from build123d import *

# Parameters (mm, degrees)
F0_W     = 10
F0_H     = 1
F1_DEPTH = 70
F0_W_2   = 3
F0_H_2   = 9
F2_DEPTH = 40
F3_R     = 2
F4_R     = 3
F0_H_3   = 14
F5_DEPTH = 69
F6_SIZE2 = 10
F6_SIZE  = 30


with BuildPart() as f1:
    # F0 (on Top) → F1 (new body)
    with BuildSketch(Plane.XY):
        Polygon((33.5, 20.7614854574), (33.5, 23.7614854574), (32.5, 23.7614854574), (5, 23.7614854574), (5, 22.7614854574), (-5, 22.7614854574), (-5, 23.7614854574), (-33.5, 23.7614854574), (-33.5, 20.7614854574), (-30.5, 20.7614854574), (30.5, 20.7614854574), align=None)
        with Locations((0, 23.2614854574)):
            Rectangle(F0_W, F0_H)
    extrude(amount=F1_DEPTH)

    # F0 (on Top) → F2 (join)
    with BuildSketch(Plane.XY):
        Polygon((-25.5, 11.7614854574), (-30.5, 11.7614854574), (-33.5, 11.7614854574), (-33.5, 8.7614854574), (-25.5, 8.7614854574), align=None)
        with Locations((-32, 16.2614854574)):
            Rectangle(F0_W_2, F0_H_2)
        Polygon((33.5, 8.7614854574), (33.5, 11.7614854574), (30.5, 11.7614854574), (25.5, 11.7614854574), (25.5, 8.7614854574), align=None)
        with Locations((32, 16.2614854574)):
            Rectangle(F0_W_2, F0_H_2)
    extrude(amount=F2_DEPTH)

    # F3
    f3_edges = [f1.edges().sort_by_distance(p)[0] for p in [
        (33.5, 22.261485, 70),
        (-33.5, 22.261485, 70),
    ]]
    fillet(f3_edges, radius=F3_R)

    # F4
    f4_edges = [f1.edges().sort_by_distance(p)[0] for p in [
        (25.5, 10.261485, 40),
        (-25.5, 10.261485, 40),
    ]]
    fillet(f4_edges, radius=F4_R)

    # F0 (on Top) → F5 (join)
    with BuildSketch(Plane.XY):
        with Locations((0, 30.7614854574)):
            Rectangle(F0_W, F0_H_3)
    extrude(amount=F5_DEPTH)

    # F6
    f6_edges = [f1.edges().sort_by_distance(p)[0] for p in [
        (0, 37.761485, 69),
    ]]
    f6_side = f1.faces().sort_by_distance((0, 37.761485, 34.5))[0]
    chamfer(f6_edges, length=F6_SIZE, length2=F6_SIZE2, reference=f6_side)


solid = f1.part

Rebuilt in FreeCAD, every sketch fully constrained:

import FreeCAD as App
import Part
import Sketcher
Q = App.Units.Quantity


def edges_at(feature, points):
    """Names of the edges that pass closest to the given points."""
    edges = feature.Shape.Edges
    near = lambda p: min(range(len(edges)), key=lambda i: edges[i].distToShape(Part.Vertex(*p))[0])
    return sorted({f"Edge{near(p) + 1}" for p in points})

doc = App.newDocument("Part")
body = doc.addObject("PartDesign::Body", "Body")

# Sketch on XY plane
sketch1 = body.newObject("Sketcher::SketchObject", "Sketch")
sketch1.AttachmentSupport = (doc.getObject("XY_Plane"), [""])
sketch1.MapMode = "FlatFace"
sketch1.addGeometry([
    Part.LineSegment(App.Vector(33.5, 20.8, 0), App.Vector(33.5, 23.8, 0)),
    Part.LineSegment(App.Vector(33.5, 23.8, 0), App.Vector(-33.5, 23.8, 0)),
    Part.LineSegment(App.Vector(-33.5, 23.8, 0), App.Vector(-33.5, 20.8, 0)),
    Part.LineSegment(App.Vector(-33.5, 20.8, 0), App.Vector(33.5, 20.8, 0)),
], False)
sketch1.addConstraint([
    Sketcher.Constraint("Coincident", 0, 2, 1, 1),
    Sketcher.Constraint("Coincident", 1, 2, 2, 1),
    Sketcher.Constraint("Coincident", 2, 2, 3, 1),
    Sketcher.Constraint("Coincident", 3, 2, 0, 1),
    Sketcher.Constraint("Vertical", 0),
    Sketcher.Constraint("Horizontal", 1),
    Sketcher.Constraint("Vertical", 2),
    Sketcher.Constraint("Horizontal", 3),
    Sketcher.Constraint("DistanceX", 1, 2, 1, 1, Q("67 mm")),
    Sketcher.Constraint("DistanceY", 0, 1, 0, 2, Q("3 mm")),
    Sketcher.Constraint("DistanceX", -1, 1, 0, 2, Q("33.5 mm")),
    Sketcher.Constraint("DistanceY", -1, 1, 0, 2, Q("23.761485 mm")),
])
pad1 = body.newObject("PartDesign::Pad", "Pad")
pad1.Profile = sketch1
pad1.Length = 70

# Sketch on XY plane
sketch2 = body.newObject("Sketcher::SketchObject", "Sketch001")
sketch2.AttachmentSupport = (doc.getObject("XY_Plane"), [""])
sketch2.MapMode = "FlatFace"
sketch2.addGeometry([
    Part.LineSegment(App.Vector(-25.5, 11.8, 0), App.Vector(-30.5, 11.8, 0)),  # 0
    Part.LineSegment(App.Vector(-30.5, 11.8, 0), App.Vector(-30.5, 20.8, 0)),  # 1
    Part.LineSegment(App.Vector(-30.5, 20.8, 0), App.Vector(-33.5, 20.8, 0)),  # 2
    Part.LineSegment(App.Vector(-33.5, 20.8, 0), App.Vector(-33.5, 8.8, 0)),  # 3
    Part.LineSegment(App.Vector(-33.5, 8.8, 0), App.Vector(-25.5, 8.8, 0)),  # 4
    Part.LineSegment(App.Vector(-25.5, 8.8, 0), App.Vector(-25.5, 11.8, 0)),  # 5
    Part.LineSegment(App.Vector(33.5, 8.8, 0), App.Vector(33.5, 20.8, 0)),  # 6
    Part.LineSegment(App.Vector(33.5, 20.8, 0), App.Vector(30.5, 20.8, 0)),  # 7
    Part.LineSegment(App.Vector(30.5, 20.8, 0), App.Vector(30.5, 11.8, 0)),  # 8
    Part.LineSegment(App.Vector(30.5, 11.8, 0), App.Vector(25.5, 11.8, 0)),  # 9
    Part.LineSegment(App.Vector(25.5, 11.8, 0), App.Vector(25.5, 8.8, 0)),  # 10
    Part.LineSegment(App.Vector(25.5, 8.8, 0), App.Vector(33.5, 8.8, 0)),  # 11
], False)
sketch2.addConstraint([
    Sketcher.Constraint("Coincident", 0, 2, 1, 1),
    Sketcher.Constraint("Coincident", 1, 2, 2, 1),
    Sketcher.Constraint("Coincident", 2, 2, 3, 1),
    Sketcher.Constraint("Coincident", 3, 2, 4, 1),
    Sketcher.Constraint("Coincident", 4, 2, 5, 1),
    Sketcher.Constraint("Coincident", 5, 2, 0, 1),
    Sketcher.Constraint("Coincident", 6, 2, 7, 1),
    Sketcher.Constraint("Coincident", 7, 2, 8, 1),
    Sketcher.Constraint("Coincident", 8, 2, 9, 1),
    Sketcher.Constraint("Coincident", 9, 2, 10, 1),
    Sketcher.Constraint("Coincident", 10, 2, 11, 1),
    Sketcher.Constraint("Coincident", 11, 2, 6, 1),
    Sketcher.Constraint("Horizontal", 0),
    Sketcher.Constraint("Vertical", 1),
    Sketcher.Constraint("Horizontal", 2),
    Sketcher.Constraint("Vertical", 3),
    Sketcher.Constraint("Horizontal", 4),
    Sketcher.Constraint("Vertical", 5),
    Sketcher.Constraint("Vertical", 6),
    Sketcher.Constraint("Horizontal", 7),
    Sketcher.Constraint("Vertical", 8),
    Sketcher.Constraint("Horizontal", 9),
    Sketcher.Constraint("Vertical", 10),
    Sketcher.Constraint("Horizontal", 11),
    Sketcher.Constraint("Symmetric", 2, 2, 6, 2, -2),
    Sketcher.Constraint("Symmetric", 0, 2, 8, 2, -2),
    Sketcher.Constraint("Symmetric", 4, 2, 10, 2, -2),
    Sketcher.Constraint("Equal", 7, 5),
    Sketcher.Constraint("DistanceX", 0, 2, 0, 1, Q("5 mm")),
    Sketcher.Constraint("DistanceX", 2, 2, 2, 1, Q("3 mm")),
    Sketcher.Constraint("DistanceY", 1, 1, 1, 2, Q("9 mm")),
    Sketcher.Constraint("DistanceX", 5, 2, 6, 2, Q("59 mm")),
    Sketcher.Constraint("DistanceY", -1, 1, 0, 2, Q("11.761485 mm")),
])
pad2 = body.newObject("PartDesign::Pad", "Pad001")
pad2.Profile = sketch2
pad2.Length = 40
doc.recompute()

fillet = body.newObject("PartDesign::Fillet", "Fillet")
fillet.Base = (pad2, edges_at(pad2, [(33.5, 22.261, 70), (-33.5, 22.261, 70)]))
fillet.Radius = 2
doc.recompute()

fillet2 = body.newObject("PartDesign::Fillet", "Fillet001")
fillet2.Base = (fillet, edges_at(fillet, [(25.5, 10.261, 40), (-25.5, 10.261, 40)]))
fillet2.Radius = 3

# Sketch on XY plane
sketch3 = body.newObject("Sketcher::SketchObject", "Sketch002")
sketch3.AttachmentSupport = (doc.getObject("XY_Plane"), [""])
sketch3.MapMode = "FlatFace"
sketch3.addGeometry([
    Part.LineSegment(App.Vector(-5, 38, 0), App.Vector(-5, 24, 0)),
    Part.LineSegment(App.Vector(-5, 24, 0), App.Vector(5, 24, 0)),
    Part.LineSegment(App.Vector(5, 24, 0), App.Vector(5, 38, 0)),
    Part.LineSegment(App.Vector(5, 38, 0), App.Vector(-5, 38, 0)),
], False)
sketch3.addConstraint([
    Sketcher.Constraint("Coincident", 0, 2, 1, 1),
    Sketcher.Constraint("Coincident", 1, 2, 2, 1),
    Sketcher.Constraint("Coincident", 2, 2, 3, 1),
    Sketcher.Constraint("Coincident", 3, 2, 0, 1),
    Sketcher.Constraint("Vertical", 0),
    Sketcher.Constraint("Horizontal", 1),
    Sketcher.Constraint("Vertical", 2),
    Sketcher.Constraint("Horizontal", 3),
    Sketcher.Constraint("DistanceX", 1, 1, 1, 2, Q("10 mm")),
    Sketcher.Constraint("DistanceY", 0, 2, 0, 1, Q("14 mm")),
    Sketcher.Constraint("DistanceX", 0, 2, -1, 1, Q("5 mm")),
    Sketcher.Constraint("DistanceY", -1, 1, 0, 2, Q("23.761485 mm")),
])
pad3 = body.newObject("PartDesign::Pad", "Pad002")
pad3.Profile = sketch3
pad3.Length = 69
doc.recompute()

chamfer = body.newObject("PartDesign::Chamfer", "Chamfer")
chamfer.Base = (pad3, edges_at(pad3, [(0, 37.761, 69)]))
chamfer.ChamferType = "Two distances"
chamfer.Size = 30
chamfer.Size2 = 10
chamfer.FlipDirection = True

doc.recompute()
